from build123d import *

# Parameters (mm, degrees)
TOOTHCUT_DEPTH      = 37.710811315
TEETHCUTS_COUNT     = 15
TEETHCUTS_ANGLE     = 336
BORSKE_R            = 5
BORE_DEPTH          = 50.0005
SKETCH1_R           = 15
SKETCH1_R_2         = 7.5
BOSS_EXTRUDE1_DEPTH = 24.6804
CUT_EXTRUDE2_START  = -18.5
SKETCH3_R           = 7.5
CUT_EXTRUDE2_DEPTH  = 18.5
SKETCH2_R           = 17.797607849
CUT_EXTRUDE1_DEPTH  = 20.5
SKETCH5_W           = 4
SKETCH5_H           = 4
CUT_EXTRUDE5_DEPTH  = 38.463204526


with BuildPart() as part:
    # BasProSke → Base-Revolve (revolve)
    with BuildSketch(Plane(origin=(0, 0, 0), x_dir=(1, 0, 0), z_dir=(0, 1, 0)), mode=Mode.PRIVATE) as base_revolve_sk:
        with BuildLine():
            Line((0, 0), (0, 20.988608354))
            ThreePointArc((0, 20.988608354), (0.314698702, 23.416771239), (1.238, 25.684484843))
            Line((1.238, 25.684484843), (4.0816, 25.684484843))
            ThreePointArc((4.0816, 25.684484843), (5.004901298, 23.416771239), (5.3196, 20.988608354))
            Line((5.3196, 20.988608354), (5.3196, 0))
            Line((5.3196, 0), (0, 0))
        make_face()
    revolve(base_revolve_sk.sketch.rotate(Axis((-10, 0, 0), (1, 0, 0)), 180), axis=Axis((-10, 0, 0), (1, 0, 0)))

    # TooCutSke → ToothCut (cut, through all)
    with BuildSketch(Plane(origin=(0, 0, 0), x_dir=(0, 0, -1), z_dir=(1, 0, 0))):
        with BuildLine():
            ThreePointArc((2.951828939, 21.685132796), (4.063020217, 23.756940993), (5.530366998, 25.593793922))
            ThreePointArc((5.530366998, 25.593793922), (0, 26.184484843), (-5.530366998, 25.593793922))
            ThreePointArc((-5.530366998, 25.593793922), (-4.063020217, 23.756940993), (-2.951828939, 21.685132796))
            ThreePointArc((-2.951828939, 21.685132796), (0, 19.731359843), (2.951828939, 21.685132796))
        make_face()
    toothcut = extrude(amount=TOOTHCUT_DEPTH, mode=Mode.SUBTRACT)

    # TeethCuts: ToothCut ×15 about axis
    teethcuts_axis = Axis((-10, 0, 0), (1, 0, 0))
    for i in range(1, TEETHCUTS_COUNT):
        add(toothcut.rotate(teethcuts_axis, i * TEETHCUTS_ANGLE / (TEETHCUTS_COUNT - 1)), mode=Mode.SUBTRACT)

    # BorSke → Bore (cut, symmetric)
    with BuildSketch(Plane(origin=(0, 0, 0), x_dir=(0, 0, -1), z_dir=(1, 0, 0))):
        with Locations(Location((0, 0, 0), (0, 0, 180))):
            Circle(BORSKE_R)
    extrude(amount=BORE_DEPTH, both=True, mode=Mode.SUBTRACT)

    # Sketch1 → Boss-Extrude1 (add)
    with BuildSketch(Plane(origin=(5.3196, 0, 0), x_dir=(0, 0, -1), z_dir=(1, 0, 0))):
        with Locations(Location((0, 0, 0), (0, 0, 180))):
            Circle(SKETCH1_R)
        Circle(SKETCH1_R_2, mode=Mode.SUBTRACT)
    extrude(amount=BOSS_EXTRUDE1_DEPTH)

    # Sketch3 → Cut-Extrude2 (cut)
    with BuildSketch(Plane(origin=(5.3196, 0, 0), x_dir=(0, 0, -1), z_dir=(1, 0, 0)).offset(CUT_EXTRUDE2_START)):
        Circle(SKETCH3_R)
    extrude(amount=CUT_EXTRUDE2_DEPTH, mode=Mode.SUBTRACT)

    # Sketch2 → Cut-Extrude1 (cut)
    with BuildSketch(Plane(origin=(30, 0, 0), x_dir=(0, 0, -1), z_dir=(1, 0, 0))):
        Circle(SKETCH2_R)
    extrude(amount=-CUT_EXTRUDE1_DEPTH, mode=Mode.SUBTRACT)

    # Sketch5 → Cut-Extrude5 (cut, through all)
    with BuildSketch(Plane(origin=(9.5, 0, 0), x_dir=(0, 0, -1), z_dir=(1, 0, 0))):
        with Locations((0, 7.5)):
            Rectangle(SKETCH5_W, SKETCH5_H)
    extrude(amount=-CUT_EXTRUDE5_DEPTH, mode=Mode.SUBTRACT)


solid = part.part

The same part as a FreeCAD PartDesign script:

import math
import FreeCAD as App
import Part
import Sketcher
from FreeCAD import Vector


def add_polygon(sketch, points):
    """Adds a closed chain of lines whose ends are joined by coincident constraints."""
    first, n = sketch.GeometryCount, len(points)
    for a, b in zip(points, points[1:] + points[:1]):
        sketch.addGeometry(Part.LineSegment(App.Vector(*a, 0), App.Vector(*b, 0)), False)
    for i in range(n):
        sketch.addConstraint(Sketcher.Constraint("Coincident", first + i, 2, first + (i + 1) % n, 1))

doc = App.newDocument("Part")
params = doc.addObject("Spreadsheet::Sheet", "Params")
for row, (alias, value) in enumerate([
    ("revolution_angle", "360 deg"),
    ("sketch3_diameter", "10 mm"),
    ("pocket2_length", "100.001 mm"),
    ("sketch4_diameter", "30 mm"),
    ("sketch4_diameter2", "15 mm"),
    ("pad1_length", "24.6804 mm"),
    ("sketch5_diameter", "15 mm"),
    ("pocket3_length", "18.5 mm"),
    ("pocket4_length", "20.5 mm"),
    ("sketch7_width", "4 mm"),
], start=1):
    params.set(f"A{row}", alias)
    params.set(f"B{row}", "=" + value)
    params.setAlias(f"B{row}", alias)

body = doc.addObject("PartDesign::Body", "Body")

# Sketch on XZ plane
sketch1 = doc.addObject("Sketcher::SketchObject", "Sketch")
body.addObject(sketch1)
sketch1.AttachmentSupport = (doc.XZ_Plane, [""])
sketch1.MapMode = "FlatFace"
sketch1.addGeometry([
    Part.LineSegment(Vector(0, -21, 0), Vector(0, 0, 0)),  # 0
    Part.LineSegment(Vector(0, 0, 0), Vector(5.3, 0, 0)),  # 1
    Part.LineSegment(Vector(5.3, 0, 0), Vector(5.3, -21, 0)),  # 2
    Part.ArcOfCircle(Part.Circle(Vector(-4.2, -21, 0), Vector(0, 0, 1), 9.5), math.radians(-30), math.radians(0)),  # 3
    Part.LineSegment(Vector(4.1, -25.7, 0), Vector(1.2, -25.7, 0)),  # 4
    Part.ArcOfCircle(Part.Circle(Vector(9.5, -21, 0), Vector(0, 0, 1), 9.5), math.radians(-180), math.radians(-150)),  # 5
], False)
sketch1.addConstraint([
    Sketcher.Constraint("Coincident", 0, 2, 1, 1),
    Sketcher.Constraint("Coincident", 1, 2, 2, 1),
    Sketcher.Constraint("Tangent", 2, 2, 3, 2),
    Sketcher.Constraint("Coincident", 3, 1, 4, 1),
    Sketcher.Constraint("Coincident", 4, 2, 5, 2),
    Sketcher.Constraint("Tangent", 5, 1, 0, 1),
    Sketcher.Constraint("Vertical", 0),
    Sketcher.Constraint("Horizontal", 1),
    Sketcher.Constraint("Vertical", 2),
    Sketcher.Constraint("Horizontal", 4),
    Sketcher.Constraint("Coincident", 0, 2, -1, 1),
    Sketcher.Constraint("Equal", 3, 5),
    Sketcher.Constraint("Horizontal", 3, 3, 5, 3),
    Sketcher.Constraint("Radius", 3, 9.525),
    Sketcher.Constraint("DistanceX", 1, 1, 1, 2, 5.3196),
    Sketcher.Constraint("DistanceX", 4, 2, 4, 1, 2.8436),
    Sketcher.Constraint("DistanceY", 0, 1, 0, 2, 20.988608),
])
revolution = doc.addObject("PartDesign::Revolution", "Revolution")
body.addObject(revolution)
revolution.Profile = sketch1
revolution.ReferenceAxis = (sketch1, ["H_Axis"])
revolution.setExpression("Angle", "Params.revolution_angle")

# Sketch on YZ plane
sketch2 = doc.addObject("Sketcher::SketchObject", "Sketch001")
body.addObject(sketch2)
sketch2.AttachmentSupport = (doc.YZ_Plane, [""])
sketch2.MapMode = "FlatFace"
sketch2.addGeometry([
    Part.ArcOfCircle(Part.Circle(Vector(16.6, -14.9, 0), Vector(0, 0, 1), 13), math.radians(46), math.radians(67)),
    Part.ArcOfCircle(Part.Circle(Vector(0, 0, 0), Vector(0, 0, 1), 26.2), math.radians(-12), math.radians(12)),
    Part.ArcOfCircle(Part.Circle(Vector(16.6, 14.9, 0), Vector(0, 0, 1), 13), math.radians(-67), math.radians(-46)),
    Part.ArcOfCircle(Part.Circle(Vector(22.9, 0, 0), Vector(0, 0, 1), 3.2), math.radians(113), math.radians(247)),
], False)
sketch2.addConstraint([
    Sketcher.Constraint("Coincident", 0, 1, 1, 1),
    Sketcher.Constraint("Coincident", 1, 2, 2, 2),
    Sketcher.Constraint("Tangent", 2, 1, 3, 1),
    Sketcher.Constraint("Tangent", 3, 2, 0, 2),
    Sketcher.Constraint("Coincident", 1, 3, -1, 1),
    Sketcher.Constraint("Equal", 0, 2),
    Sketcher.Constraint("Symmetric", 0, 3, 2, 3, -1),
    Sketcher.Constraint("Radius", 0, 12.954),
    Sketcher.Constraint("Radius", 3, 3.20675),
    Sketcher.Constraint("Radius", 1, 26.184485),
    Sketcher.Constraint("DistanceX", -1, 1, 0, 3, 16.623602),
    Sketcher.Constraint("DistanceY", 0, 3, -1, 1, 14.876049),
])
pocket1 = doc.addObject("PartDesign::Pocket", "Pocket")
body.addObject(pocket1)
pocket1.Profile = sketch2
pocket1.Type = "ThroughAll"
pocket1.Reversed = True
doc.recompute()

polarpattern = doc.addObject("PartDesign::PolarPattern", "PolarPattern")
body.addObject(polarpattern)
polarpattern.Originals = [pocket1]
polarpattern.Axis = (doc.X_Axis, [""])
polarpattern.Angle = 360
polarpattern.Occurrences = 15
body.Tip = polarpattern

# Sketch on YZ plane
sketch3 = doc.addObject("Sketcher::SketchObject", "Sketch002")
body.addObject(sketch3)
sketch3.AttachmentSupport = (doc.YZ_Plane, [""])
sketch3.MapMode = "FlatFace"
sketch3.addGeometry(Part.Circle(Vector(0, 0, 0), Vector(0, 0, 1), 5), False)
sketch3.addConstraint([
    Sketcher.Constraint("Coincident", 0, 3, -1, 1),
    Sketcher.Constraint("Diameter", 0, 10.0),
])
sketch3.setExpression("Constraints[1]", "Params.sketch3_diameter")
pocket2 = doc.addObject("PartDesign::Pocket", "Pocket001")
body.addObject(pocket2)
pocket2.Profile = sketch3
pocket2.setExpression("Length", "Params.pocket2_length")
pocket2.Midplane = True

# Sketch on YZ plane
sketch4 = doc.addObject("Sketcher::SketchObject", "Sketch003")
body.addObject(sketch4)
sketch4.AttachmentSupport = (doc.YZ_Plane, [""])
sketch4.MapMode = "FlatFace"
sketch4.AttachmentOffset = App.Placement(Vector(0, 0, 5.3196), App.Rotation())
sketch4.addGeometry([
    Part.Circle(Vector(0, 0, 0), Vector(0, 0, 1), 15),
    Part.Circle(Vector(0, 0, 0), Vector(0, 0, 1), 8),
], False)
sketch4.addConstraint([
    Sketcher.Constraint("Coincident", 0, 3, -1, 1),
    Sketcher.Constraint("Coincident", 1, 3, -1, 1),
    Sketcher.Constraint("Diameter", 0, 30.0),
    Sketcher.Constraint("Diameter", 1, 15.0),
])
sketch4.setExpression("Constraints[2]", "Params.sketch4_diameter")
sketch4.setExpression("Constraints[3]", "Params.sketch4_diameter2")
pad1 = doc.addObject("PartDesign::Pad", "Pad")
body.addObject(pad1)
pad1.Profile = sketch4
pad1.setExpression("Length", "Params.pad1_length")

# Sketch on YZ plane
sketch5 = doc.addObject("Sketcher::SketchObject", "Sketch004")
body.addObject(sketch5)
sketch5.AttachmentSupport = (doc.YZ_Plane, [""])
sketch5.MapMode = "FlatFace"
sketch5.AttachmentOffset = App.Placement(Vector(0, 0, -13.1804), App.Rotation())
sketch5.addGeometry(Part.Circle(Vector(0, 0, 0), Vector(0, 0, 1), 8), False)
sketch5.addConstraint([
    Sketcher.Constraint("Coincident", 0, 3, -1, 1),
    Sketcher.Constraint("Diameter", 0, 15.0),
])
sketch5.setExpression("Constraints[1]", "Params.sketch5_diameter")
pocket3 = doc.addObject("PartDesign::Pocket", "Pocket002")
body.addObject(pocket3)
pocket3.Profile = sketch5
pocket3.setExpression("Length", "Params.pocket3_length")
pocket3.Reversed = True

# Sketch on YZ plane
sketch6 = doc.addObject("Sketcher::SketchObject", "Sketch005")
body.addObject(sketch6)
sketch6.AttachmentSupport = (doc.YZ_Plane, [""])
sketch6.MapMode = "FlatFace"
sketch6.AttachmentOffset = App.Placement(Vector(0, 0, 30), App.Rotation())
sketch6.addGeometry(Part.Circle(Vector(0, 0, 0), Vector(0, 0, 1), 18), False)
sketch6.addConstraint([
    Sketcher.Constraint("Coincident", 0, 3, -1, 1),
    Sketcher.Constraint("Diameter", 0, 35.595216),
])
pocket4 = doc.addObject("PartDesign::Pocket", "Pocket003")
body.addObject(pocket4)
pocket4.Profile = sketch6
pocket4.setExpression("Length", "Params.pocket4_length")

# Sketch on YZ plane
sketch7 = doc.addObject("Sketcher::SketchObject", "Sketch006")
body.addObject(sketch7)
sketch7.AttachmentSupport = (doc.YZ_Plane, [""])
sketch7.MapMode = "FlatFace"
sketch7.AttachmentOffset = App.Placement(Vector(0, 0, 9.5), App.Rotation())
add_polygon(sketch7, [(9.5, 2), (5.5, 2), (5.5, -2), (9.5, -2)])  # lines 0-3
sketch7.addConstraint([
    Sketcher.Constraint("Horizontal", 0),
    Sketcher.Constraint("Vertical", 1),
    Sketcher.Constraint("Horizontal", 2),
    Sketcher.Constraint("Vertical", 3),
    Sketcher.Constraint("Equal", 2, 1),
    Sketcher.Constraint("DistanceX", 0, 2, 0, 1, 4.0),
    Sketcher.Constraint("DistanceY", -1, 1, 0, 2, 2.0),
    Sketcher.Constraint("DistanceX", -1, 1, 0, 2, 5.5),
])
sketch7.setExpression("Constraints[9]", "Params.sketch7_width")
pocket5 = doc.addObject("PartDesign::Pocket", "Pocket004")
body.addObject(pocket5)
pocket5.Profile = sketch7
pocket5.Type = "ThroughAll"

doc.recompute()
